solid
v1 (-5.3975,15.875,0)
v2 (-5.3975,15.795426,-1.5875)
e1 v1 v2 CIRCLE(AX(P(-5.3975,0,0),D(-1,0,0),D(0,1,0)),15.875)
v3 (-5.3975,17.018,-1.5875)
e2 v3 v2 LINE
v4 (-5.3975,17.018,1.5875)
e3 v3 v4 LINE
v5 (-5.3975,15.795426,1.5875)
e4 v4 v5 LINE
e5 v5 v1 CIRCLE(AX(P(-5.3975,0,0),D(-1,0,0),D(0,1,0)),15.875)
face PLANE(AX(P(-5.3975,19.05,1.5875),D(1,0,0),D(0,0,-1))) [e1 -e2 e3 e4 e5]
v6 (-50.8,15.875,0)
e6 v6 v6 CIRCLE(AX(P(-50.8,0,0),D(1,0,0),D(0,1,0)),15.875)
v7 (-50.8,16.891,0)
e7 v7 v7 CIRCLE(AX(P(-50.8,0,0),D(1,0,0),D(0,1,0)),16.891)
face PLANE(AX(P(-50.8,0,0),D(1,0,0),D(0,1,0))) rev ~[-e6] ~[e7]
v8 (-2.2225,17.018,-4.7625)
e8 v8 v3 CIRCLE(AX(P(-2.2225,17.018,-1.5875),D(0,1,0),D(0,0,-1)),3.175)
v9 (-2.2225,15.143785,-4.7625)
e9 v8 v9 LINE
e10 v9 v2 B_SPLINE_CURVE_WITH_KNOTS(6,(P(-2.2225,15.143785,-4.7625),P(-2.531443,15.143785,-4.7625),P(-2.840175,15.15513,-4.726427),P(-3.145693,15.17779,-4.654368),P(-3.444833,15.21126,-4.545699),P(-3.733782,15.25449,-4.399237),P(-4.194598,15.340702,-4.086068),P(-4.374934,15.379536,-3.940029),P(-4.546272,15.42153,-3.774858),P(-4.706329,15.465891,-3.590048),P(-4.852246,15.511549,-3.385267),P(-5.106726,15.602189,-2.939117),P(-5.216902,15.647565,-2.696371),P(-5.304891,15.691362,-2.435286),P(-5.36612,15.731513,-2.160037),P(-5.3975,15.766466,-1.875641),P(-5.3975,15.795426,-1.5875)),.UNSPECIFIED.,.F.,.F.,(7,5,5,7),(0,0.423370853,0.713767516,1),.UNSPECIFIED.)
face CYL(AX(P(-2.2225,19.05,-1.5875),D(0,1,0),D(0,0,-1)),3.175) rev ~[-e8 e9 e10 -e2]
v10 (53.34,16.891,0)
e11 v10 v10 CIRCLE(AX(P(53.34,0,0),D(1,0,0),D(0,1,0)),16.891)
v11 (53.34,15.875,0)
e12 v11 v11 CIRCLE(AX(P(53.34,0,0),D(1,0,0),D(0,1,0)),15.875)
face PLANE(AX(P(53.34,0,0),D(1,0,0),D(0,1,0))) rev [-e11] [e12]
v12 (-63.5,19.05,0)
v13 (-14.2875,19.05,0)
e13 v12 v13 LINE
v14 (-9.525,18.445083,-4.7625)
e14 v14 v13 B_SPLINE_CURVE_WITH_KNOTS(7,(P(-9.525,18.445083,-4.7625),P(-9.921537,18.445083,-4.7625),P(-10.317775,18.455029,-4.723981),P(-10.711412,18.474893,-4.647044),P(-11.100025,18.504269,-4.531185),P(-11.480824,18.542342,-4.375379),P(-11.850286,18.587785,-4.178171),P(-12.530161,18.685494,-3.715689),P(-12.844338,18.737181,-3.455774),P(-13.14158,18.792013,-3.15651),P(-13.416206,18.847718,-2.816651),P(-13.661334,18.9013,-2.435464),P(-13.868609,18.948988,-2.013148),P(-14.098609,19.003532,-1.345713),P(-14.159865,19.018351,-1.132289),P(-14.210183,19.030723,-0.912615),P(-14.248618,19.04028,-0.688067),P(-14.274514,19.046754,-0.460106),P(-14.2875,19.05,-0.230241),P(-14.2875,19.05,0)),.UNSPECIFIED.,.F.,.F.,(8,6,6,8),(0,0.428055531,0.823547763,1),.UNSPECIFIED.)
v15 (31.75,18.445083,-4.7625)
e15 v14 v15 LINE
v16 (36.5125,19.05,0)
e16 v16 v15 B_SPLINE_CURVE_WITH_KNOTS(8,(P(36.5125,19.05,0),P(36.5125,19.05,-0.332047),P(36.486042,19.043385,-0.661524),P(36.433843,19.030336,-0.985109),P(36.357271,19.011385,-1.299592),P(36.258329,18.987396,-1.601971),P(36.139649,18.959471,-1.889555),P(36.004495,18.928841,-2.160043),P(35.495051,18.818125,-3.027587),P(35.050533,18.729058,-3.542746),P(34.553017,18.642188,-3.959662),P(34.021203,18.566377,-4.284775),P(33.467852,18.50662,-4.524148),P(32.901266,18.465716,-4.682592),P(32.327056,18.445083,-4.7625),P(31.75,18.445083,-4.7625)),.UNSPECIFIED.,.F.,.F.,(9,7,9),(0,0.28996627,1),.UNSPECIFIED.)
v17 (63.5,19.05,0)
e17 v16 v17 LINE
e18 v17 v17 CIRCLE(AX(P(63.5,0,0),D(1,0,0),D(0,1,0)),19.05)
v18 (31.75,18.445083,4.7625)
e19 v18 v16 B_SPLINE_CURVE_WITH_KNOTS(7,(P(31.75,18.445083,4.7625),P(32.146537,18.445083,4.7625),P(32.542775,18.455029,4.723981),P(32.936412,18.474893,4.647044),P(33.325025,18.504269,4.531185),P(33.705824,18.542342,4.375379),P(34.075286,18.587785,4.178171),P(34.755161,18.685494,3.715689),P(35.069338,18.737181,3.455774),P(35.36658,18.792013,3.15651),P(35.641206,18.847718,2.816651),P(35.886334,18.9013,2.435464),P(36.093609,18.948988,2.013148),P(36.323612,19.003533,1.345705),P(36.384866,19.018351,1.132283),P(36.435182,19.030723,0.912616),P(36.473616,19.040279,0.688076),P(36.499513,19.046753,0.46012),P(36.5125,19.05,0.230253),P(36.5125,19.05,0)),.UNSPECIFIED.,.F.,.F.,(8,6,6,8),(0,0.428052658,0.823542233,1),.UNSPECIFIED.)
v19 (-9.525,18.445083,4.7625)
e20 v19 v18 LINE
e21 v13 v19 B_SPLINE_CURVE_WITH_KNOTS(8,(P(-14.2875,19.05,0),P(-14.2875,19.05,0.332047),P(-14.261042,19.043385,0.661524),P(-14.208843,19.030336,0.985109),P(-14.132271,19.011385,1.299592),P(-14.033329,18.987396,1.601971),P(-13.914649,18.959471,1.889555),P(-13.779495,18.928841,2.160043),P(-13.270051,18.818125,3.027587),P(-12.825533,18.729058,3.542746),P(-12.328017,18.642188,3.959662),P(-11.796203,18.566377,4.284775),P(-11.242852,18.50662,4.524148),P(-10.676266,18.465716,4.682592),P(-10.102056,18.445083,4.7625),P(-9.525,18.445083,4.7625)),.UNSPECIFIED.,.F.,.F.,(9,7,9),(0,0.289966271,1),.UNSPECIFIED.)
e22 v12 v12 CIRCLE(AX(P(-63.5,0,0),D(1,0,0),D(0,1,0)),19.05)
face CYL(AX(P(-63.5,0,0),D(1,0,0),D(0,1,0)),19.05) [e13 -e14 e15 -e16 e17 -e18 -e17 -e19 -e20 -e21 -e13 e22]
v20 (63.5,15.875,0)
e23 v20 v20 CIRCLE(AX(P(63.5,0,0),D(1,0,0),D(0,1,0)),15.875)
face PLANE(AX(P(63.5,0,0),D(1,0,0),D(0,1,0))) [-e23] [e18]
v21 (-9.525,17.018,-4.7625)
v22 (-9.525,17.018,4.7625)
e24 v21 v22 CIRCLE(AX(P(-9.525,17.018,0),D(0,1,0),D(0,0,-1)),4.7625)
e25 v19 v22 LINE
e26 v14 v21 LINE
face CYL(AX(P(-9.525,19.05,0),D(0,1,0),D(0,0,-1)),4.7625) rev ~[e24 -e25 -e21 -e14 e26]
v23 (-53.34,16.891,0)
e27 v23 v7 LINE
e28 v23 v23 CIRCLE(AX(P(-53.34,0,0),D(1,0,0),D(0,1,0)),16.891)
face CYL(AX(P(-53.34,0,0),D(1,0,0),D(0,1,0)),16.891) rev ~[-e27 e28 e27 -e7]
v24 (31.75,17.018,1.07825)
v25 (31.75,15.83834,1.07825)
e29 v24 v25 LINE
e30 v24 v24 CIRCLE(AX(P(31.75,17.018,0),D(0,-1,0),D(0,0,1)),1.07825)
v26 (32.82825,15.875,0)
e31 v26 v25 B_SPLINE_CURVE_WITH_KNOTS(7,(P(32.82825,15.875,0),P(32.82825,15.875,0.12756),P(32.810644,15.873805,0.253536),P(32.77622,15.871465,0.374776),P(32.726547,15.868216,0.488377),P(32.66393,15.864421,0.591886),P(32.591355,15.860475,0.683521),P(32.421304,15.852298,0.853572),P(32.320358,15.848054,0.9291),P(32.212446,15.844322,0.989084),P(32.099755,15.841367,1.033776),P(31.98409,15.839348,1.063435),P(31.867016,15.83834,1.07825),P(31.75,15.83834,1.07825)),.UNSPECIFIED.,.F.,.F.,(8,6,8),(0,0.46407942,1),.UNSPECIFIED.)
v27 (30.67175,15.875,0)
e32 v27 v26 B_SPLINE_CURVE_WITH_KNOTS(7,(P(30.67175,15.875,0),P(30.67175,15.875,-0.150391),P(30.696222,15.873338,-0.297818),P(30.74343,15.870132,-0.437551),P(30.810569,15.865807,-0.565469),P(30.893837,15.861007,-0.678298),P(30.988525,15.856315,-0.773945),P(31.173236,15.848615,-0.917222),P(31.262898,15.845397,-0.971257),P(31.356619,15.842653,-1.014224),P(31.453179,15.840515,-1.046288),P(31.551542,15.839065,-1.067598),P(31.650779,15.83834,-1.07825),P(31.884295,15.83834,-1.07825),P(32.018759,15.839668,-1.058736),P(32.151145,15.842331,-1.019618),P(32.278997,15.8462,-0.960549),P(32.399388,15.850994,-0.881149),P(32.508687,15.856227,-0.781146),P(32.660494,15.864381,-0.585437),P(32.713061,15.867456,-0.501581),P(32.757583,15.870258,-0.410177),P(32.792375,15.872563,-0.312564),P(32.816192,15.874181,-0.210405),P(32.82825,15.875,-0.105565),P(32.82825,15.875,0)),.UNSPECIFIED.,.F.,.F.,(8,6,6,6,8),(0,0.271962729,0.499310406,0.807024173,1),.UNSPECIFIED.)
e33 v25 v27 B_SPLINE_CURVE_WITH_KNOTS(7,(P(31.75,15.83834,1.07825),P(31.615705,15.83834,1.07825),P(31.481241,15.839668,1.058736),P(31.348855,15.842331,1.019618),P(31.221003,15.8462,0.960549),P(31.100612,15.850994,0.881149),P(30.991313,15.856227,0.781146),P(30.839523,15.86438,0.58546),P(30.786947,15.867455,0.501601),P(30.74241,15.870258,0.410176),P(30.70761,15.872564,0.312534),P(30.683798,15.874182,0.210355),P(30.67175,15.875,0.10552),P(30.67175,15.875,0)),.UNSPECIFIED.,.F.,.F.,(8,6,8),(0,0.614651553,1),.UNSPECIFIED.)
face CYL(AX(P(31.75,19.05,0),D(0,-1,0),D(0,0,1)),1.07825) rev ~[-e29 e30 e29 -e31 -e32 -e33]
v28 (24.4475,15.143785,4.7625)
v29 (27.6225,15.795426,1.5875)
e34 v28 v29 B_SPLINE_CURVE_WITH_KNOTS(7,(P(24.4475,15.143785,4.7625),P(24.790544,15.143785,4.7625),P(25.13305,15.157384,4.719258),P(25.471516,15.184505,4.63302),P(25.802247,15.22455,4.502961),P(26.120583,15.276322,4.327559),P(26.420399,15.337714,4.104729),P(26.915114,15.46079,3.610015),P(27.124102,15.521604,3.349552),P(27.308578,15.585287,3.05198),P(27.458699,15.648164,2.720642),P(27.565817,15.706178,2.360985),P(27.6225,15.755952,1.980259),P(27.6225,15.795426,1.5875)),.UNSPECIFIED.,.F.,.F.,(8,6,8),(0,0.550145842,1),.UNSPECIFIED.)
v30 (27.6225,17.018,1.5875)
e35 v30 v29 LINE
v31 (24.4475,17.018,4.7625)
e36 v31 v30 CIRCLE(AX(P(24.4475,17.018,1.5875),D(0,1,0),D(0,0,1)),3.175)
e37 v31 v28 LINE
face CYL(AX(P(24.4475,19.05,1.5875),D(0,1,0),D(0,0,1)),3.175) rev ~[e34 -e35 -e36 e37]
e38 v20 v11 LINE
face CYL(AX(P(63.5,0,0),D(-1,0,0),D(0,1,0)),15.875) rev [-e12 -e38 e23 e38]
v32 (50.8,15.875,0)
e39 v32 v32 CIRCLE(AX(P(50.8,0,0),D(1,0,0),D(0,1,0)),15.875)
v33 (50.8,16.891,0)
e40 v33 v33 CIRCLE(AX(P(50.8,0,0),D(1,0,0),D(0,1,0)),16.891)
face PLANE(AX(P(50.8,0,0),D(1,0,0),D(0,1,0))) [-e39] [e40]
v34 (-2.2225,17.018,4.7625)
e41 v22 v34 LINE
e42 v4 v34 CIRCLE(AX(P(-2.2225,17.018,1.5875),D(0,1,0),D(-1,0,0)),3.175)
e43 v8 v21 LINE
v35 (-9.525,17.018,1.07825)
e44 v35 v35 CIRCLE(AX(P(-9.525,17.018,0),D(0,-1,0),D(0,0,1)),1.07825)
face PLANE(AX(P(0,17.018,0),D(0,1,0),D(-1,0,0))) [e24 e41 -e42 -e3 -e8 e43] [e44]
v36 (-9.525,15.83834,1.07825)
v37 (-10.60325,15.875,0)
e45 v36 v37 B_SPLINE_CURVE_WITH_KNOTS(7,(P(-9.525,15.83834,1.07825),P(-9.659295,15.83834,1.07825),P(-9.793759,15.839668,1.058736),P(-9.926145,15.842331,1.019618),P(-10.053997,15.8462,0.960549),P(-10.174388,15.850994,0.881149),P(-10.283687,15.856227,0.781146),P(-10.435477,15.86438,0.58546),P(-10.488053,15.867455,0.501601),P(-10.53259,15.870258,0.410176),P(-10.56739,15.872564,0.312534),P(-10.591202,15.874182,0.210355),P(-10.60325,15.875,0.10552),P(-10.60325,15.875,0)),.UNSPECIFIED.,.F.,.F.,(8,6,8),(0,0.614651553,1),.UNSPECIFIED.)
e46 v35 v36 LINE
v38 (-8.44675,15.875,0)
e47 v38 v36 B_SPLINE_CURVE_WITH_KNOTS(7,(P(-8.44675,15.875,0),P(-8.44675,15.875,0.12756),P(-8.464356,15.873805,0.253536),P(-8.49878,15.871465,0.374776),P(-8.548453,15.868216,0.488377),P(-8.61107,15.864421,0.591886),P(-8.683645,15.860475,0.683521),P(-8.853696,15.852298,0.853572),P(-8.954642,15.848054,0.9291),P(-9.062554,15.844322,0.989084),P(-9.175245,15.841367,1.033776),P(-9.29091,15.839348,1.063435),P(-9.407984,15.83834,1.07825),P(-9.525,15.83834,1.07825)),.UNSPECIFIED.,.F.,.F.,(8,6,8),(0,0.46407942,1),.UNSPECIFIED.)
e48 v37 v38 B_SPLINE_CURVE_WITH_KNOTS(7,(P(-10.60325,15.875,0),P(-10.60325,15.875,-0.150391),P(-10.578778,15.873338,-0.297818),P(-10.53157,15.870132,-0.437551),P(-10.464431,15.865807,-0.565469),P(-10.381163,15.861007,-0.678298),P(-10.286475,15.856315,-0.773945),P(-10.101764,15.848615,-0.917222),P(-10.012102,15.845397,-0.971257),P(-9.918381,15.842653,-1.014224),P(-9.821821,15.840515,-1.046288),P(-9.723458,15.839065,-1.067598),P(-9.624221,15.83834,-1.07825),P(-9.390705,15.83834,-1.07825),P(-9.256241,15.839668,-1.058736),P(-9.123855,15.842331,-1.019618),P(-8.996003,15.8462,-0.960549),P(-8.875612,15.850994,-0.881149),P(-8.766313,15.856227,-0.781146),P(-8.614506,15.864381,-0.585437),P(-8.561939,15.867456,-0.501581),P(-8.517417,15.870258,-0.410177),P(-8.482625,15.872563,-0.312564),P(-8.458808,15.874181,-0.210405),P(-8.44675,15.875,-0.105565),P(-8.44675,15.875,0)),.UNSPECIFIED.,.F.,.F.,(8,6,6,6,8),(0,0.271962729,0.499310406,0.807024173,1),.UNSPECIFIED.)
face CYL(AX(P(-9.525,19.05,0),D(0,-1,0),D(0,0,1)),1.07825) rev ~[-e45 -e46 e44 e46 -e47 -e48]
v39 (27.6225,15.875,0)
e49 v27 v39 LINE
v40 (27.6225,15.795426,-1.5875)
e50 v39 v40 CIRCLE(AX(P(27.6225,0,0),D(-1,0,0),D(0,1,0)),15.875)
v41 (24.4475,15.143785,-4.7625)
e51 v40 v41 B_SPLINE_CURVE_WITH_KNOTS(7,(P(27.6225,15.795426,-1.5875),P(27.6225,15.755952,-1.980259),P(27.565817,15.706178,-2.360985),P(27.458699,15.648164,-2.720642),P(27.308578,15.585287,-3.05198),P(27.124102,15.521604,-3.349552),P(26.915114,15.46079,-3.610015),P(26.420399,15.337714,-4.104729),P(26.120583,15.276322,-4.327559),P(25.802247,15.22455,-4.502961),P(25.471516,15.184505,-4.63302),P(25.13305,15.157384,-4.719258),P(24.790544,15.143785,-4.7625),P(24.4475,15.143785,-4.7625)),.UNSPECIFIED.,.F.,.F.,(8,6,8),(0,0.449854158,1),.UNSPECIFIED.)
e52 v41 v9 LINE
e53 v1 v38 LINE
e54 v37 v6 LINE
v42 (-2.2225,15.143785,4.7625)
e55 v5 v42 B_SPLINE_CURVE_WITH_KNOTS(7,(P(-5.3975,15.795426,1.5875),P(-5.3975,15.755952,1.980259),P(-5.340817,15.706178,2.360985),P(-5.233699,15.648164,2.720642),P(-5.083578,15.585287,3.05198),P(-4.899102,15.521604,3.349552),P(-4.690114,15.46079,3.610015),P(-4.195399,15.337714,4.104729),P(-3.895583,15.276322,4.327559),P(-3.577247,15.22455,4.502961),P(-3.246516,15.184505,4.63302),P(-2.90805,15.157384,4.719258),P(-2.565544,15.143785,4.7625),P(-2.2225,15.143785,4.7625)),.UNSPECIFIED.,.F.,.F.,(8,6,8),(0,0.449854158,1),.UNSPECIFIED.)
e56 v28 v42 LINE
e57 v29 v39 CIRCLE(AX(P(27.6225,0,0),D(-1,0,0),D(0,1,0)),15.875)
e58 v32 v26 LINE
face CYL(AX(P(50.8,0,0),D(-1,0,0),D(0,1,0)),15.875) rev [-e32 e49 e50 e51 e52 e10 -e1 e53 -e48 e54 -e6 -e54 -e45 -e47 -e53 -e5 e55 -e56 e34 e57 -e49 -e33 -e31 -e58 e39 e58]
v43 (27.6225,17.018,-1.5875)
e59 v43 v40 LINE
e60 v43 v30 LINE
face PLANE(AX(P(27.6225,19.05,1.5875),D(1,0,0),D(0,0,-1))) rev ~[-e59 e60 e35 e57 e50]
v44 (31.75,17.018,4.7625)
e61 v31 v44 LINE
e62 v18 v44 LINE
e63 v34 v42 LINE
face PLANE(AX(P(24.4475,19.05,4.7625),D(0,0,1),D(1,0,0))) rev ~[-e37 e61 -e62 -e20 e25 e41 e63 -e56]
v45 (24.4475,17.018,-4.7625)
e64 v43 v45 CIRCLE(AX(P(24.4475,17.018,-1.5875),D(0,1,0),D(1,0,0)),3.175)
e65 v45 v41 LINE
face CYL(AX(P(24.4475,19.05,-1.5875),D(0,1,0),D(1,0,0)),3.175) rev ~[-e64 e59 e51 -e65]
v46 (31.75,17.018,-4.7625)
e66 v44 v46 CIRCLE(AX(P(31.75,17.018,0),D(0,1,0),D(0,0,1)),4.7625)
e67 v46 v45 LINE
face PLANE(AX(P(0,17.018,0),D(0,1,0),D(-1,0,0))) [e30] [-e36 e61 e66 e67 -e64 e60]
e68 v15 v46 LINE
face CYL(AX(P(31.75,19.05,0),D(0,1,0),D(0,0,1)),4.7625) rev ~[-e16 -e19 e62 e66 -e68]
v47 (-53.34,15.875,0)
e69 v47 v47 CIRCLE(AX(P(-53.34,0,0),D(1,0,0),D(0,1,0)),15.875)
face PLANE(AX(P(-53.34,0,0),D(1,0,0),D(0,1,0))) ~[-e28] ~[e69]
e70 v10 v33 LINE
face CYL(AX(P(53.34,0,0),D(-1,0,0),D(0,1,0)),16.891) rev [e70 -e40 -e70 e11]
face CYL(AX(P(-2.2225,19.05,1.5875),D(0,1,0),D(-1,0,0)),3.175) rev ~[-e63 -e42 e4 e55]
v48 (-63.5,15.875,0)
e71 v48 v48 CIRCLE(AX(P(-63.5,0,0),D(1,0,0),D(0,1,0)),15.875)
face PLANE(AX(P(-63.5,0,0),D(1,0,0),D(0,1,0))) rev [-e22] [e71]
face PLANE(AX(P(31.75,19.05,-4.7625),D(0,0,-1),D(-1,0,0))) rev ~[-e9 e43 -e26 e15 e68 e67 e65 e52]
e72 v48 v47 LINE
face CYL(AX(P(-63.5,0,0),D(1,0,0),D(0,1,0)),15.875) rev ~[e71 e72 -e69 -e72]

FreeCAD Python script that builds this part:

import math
import FreeCAD as App
import Part
import Sketcher

V = App.Vector
Q = App.Units.Quantity

doc = App.newDocument("Part")
body = doc.addObject("PartDesign::Body", "Body")

# Sketch on XY plane
sketch1 = body.newObject("Sketcher::SketchObject", "Sketch")
sketch1.AttachmentSupport = (doc.getObject("XY_Plane"), [""])
sketch1.MapMode = "FlatFace"
sketch1.addGeometry([
    Part.LineSegment(V(63.5, 19.1, 0), V(-63.5, 19.1, 0)),  # 0
    Part.LineSegment(V(-63.5, 19.1, 0), V(-63.5, 15.9, 0)),  # 1
    Part.LineSegment(V(-63.5, 15.9, 0), V(-53.3, 15.9, 0)),  # 2
    Part.LineSegment(V(-53.3, 15.9, 0), V(-53.3, 16.9, 0)),  # 3
    Part.LineSegment(V(-53.3, 16.9, 0), V(-50.8, 16.9, 0)),  # 4
    Part.LineSegment(V(-50.8, 16.9, 0), V(-50.8, 15.9, 0)),  # 5
    Part.LineSegment(V(-50.8, 15.9, 0), V(50.8, 15.9, 0)),  # 6
    Part.LineSegment(V(50.8, 15.9, 0), V(50.8, 16.9, 0)),  # 7
    Part.LineSegment(V(50.8, 16.9, 0), V(53.3, 16.9, 0)),  # 8
    Part.LineSegment(V(53.3, 16.9, 0), V(53.3, 15.9, 0)),  # 9
    Part.LineSegment(V(53.3, 15.9, 0), V(63.5, 15.9, 0)),  # 10
    Part.LineSegment(V(63.5, 15.9, 0), V(63.5, 19.1, 0)),  # 11
], False)
sketch1.addConstraint([
    Sketcher.Constraint("Coincident", 0, 2, 1, 1),
    Sketcher.Constraint("Coincident", 1, 2, 2, 1),
    Sketcher.Constraint("Coincident", 2, 2, 3, 1),
    Sketcher.Constraint("Coincident", 3, 2, 4, 1),
    Sketcher.Constraint("Coincident", 4, 2, 5, 1),
    Sketcher.Constraint("Coincident", 5, 2, 6, 1),
    Sketcher.Constraint("Coincident", 6, 2, 7, 1),
    Sketcher.Constraint("Coincident", 7, 2, 8, 1),
    Sketcher.Constraint("Coincident", 8, 2, 9, 1),
    Sketcher.Constraint("Coincident", 9, 2, 10, 1),
    Sketcher.Constraint("Coincident", 10, 2, 11, 1),
    Sketcher.Constraint("Coincident", 11, 2, 0, 1),
    Sketcher.Constraint("Horizontal", 0),
    Sketcher.Constraint("Vertical", 1),
    Sketcher.Constraint("Horizontal", 2),
    Sketcher.Constraint("Vertical", 3),
    Sketcher.Constraint("Horizontal", 4),
    Sketcher.Constraint("Vertical", 5),
    Sketcher.Constraint("Horizontal", 6),
    Sketcher.Constraint("Vertical", 7),
    Sketcher.Constraint("Horizontal", 8),
    Sketcher.Constraint("Vertical", 9),
    Sketcher.Constraint("Horizontal", 10),
    Sketcher.Constraint("Vertical", 11),
    Sketcher.Constraint("Symmetric", 4, 2, 7, 2, -2),
    Sketcher.Constraint("Symmetric", 2, 2, 9, 2, -2),
    Sketcher.Constraint("Horizontal", 2, 2, 5, 2),
    Sketcher.Constraint("Equal", 2, 10),
    Sketcher.Constraint("DistanceX", 0, 2, 0, 1, Q("5 in")),
    Sketcher.Constraint("DistanceX", 2, 1, 2, 2, Q("0.4 in")),
    Sketcher.Constraint("DistanceX", 4, 1, 4, 2, Q("0.1 in")),
    Sketcher.Constraint("DistanceY", 3, 1, 3, 2, Q("0.04 in")),
    Sketcher.Constraint("DistanceY", 1, 2, 1, 1, Q("0.125 in")),
    Sketcher.Constraint("DistanceY", -1, 1, 0, 2, Q("0.75 in")),
])
revolution = body.newObject("PartDesign::Revolution", "Revolution")
revolution.Profile = sketch1
revolution.ReferenceAxis = (sketch1, ["H_Axis"])
revolution.Angle = 360

# Sketch on XZ plane
sketch2 = body.newObject("Sketcher::SketchObject", "Sketch001")
sketch2.AttachmentSupport = (doc.getObject("XZ_Plane"), [""])
sketch2.MapMode = "FlatFace"
sketch2.AttachmentOffset = App.Placement(V(0, 0, -0.75 * 25.4), App.Rotation())
sketch2.addGeometry([
    Part.ArcOfCircle(Part.Circle(V(31.8, 0, 0), V(0, 0, 1), 4.8), math.radians(-90), math.radians(90)),
    Part.LineSegment(V(31.8, -4.8, 0), V(-9.5, -4.8, 0)),
    Part.ArcOfCircle(Part.Circle(V(-9.5, 0, 0), V(0, 0, 1), 4.8), math.radians(90), math.radians(270)),
    Part.LineSegment(V(-9.5, 4.8, 0), V(31.8, 4.8, 0)),
], False)
sketch2.addConstraint([
    Sketcher.Constraint("Tangent", 0, 1, 1, 1),
    Sketcher.Constraint("Tangent", 1, 2, 2, 2),
    Sketcher.Constraint("Tangent", 2, 1, 3, 1),
    Sketcher.Constraint("Tangent", 3, 2, 0, 2),
    Sketcher.Constraint("Horizontal", 1),
    Sketcher.Constraint("Horizontal", 3),
    Sketcher.Constraint("PointOnObject", 0, 3, -1),
    Sketcher.Constraint("Radius", 0, Q("0.1875 in")),
    Sketcher.Constraint("DistanceX", 1, 2, 1, 1, Q("1.625 in")),
    Sketcher.Constraint("DistanceX", -1, 1, 0, 3, Q("1.25 in")),
])
pocket1 = body.newObject("PartDesign::Pocket", "Pocket")
pocket1.Profile = sketch2
pocket1.Length = Q("0.08 in")
pocket1.Reversed = True

# Sketch on XZ plane
sketch3 = body.newObject("Sketcher::SketchObject", "Sketch002")
sketch3.AttachmentSupport = (doc.getObject("XZ_Plane"), [""])
sketch3.MapMode = "FlatFace"
sketch3.AttachmentOffset = App.Placement(V(0, 0, -0.75 * 25.4), App.Rotation())
sketch3.addGeometry([
    Part.ArcOfCircle(Part.Circle(V(24.4, -1.6, 0), V(0, 0, 1), 3.2), math.radians(-90), math.radians(0)),  # 0
    Part.LineSegment(V(24.4, -4.8, 0), V(-2.2, -4.8, 0)),  # 1
    Part.ArcOfCircle(Part.Circle(V(-2.2, -1.6, 0), V(0, 0, 1), 3.2), math.radians(180), math.radians(270)),  # 2
    Part.LineSegment(V(-5.4, -1.6, 0), V(-5.4, 1.6, 0)),  # 3
    Part.ArcOfCircle(Part.Circle(V(-2.2, 1.6, 0), V(0, 0, 1), 3.2), math.radians(90), math.radians(180)),  # 4
    Part.LineSegment(V(-2.2, 4.8, 0), V(24.4, 4.8, 0)),  # 5
    Part.ArcOfCircle(Part.Circle(V(24.4, 1.6, 0), V(0, 0, 1), 3.2), math.radians(0), math.radians(90)),  # 6
    Part.LineSegment(V(27.6, 1.6, 0), V(27.6, -1.6, 0)),  # 7
], False)
sketch3.addConstraint([
    Sketcher.Constraint("Tangent", 0, 1, 1, 1),
    Sketcher.Constraint("Tangent", 1, 2, 2, 2),
    Sketcher.Constraint("Tangent", 2, 1, 3, 1),
    Sketcher.Constraint("Tangent", 3, 2, 4, 2),
    Sketcher.Constraint("Tangent", 4, 1, 5, 1),
    Sketcher.Constraint("Tangent", 5, 2, 6, 2),
    Sketcher.Constraint("Tangent", 6, 1, 7, 1),
    Sketcher.Constraint("Tangent", 7, 2, 0, 2),
    Sketcher.Constraint("Horizontal", 1),
    Sketcher.Constraint("Vertical", 3),
    Sketcher.Constraint("Horizontal", 5),
    Sketcher.Constraint("Vertical", 7),
    Sketcher.Constraint("Equal", 0, 2),
    Sketcher.Constraint("Equal", 2, 4),
    Sketcher.Constraint("Equal", 4, 6),
    Sketcher.Constraint("Radius", 0, Q("0.125 in")),
    Sketcher.Constraint("DistanceY", 3, 1, 3, 2, Q("0.125 in")),
    Sketcher.Constraint("DistanceX", 1, 2, 1, 1, Q("1.05 in")),
    Sketcher.Constraint("DistanceY", 0, 3, -1, 1, Q("0.0625 in")),
    Sketcher.Constraint("DistanceX", -1, 1, 0, 3, Q("0.9625 in")),
])
pocket2 = body.newObject("PartDesign::Pocket", "Pocket001")
pocket2.Profile = sketch3
pocket2.Length = 3.9062
pocket2.Reversed = True

# Sketch on XZ plane
sketch4 = body.newObject("Sketcher::SketchObject", "Sketch003")
sketch4.AttachmentSupport = (doc.getObject("XZ_Plane"), [""])
sketch4.MapMode = "FlatFace"
sketch4.AttachmentOffset = App.Placement(V(0, 0, -0.75 * 25.4), App.Rotation())
sketch4.addGeometry([
    Part.Circle(V(-9.5, 0, 0), V(0, 0, 1), 1.1),
    Part.Circle(V(31.8, 0, 0), V(0, 0, 1), 1.1),
], False)
sketch4.addConstraint([
    Sketcher.Constraint("Equal", 0, 1),
    Sketcher.Constraint("PointOnObject", 0, 3, -1),
    Sketcher.Constraint("PointOnObject", 1, 3, -1),
    Sketcher.Constraint("Diameter", 0, Q("0.0849 in")),
    Sketcher.Constraint("DistanceX", -1, 1, 1, 3, Q("1.25 in")),
    Sketcher.Constraint("DistanceX", 0, 3, -1, 1, Q("0.375 in")),
])
doc.recompute()
hole = body.newObject("PartDesign::Hole", "Hole")
hole.Profile = sketch4
hole.ThreadType = "None"
hole.Diameter = Q("0.0849016 in")
hole.DepthType = "Dimension"
hole.Depth = Q("0.25 in")
hole.DrillPoint = "Angled"
hole.DrillPointAngle = 118
hole.Reversed = True

doc.recompute()
